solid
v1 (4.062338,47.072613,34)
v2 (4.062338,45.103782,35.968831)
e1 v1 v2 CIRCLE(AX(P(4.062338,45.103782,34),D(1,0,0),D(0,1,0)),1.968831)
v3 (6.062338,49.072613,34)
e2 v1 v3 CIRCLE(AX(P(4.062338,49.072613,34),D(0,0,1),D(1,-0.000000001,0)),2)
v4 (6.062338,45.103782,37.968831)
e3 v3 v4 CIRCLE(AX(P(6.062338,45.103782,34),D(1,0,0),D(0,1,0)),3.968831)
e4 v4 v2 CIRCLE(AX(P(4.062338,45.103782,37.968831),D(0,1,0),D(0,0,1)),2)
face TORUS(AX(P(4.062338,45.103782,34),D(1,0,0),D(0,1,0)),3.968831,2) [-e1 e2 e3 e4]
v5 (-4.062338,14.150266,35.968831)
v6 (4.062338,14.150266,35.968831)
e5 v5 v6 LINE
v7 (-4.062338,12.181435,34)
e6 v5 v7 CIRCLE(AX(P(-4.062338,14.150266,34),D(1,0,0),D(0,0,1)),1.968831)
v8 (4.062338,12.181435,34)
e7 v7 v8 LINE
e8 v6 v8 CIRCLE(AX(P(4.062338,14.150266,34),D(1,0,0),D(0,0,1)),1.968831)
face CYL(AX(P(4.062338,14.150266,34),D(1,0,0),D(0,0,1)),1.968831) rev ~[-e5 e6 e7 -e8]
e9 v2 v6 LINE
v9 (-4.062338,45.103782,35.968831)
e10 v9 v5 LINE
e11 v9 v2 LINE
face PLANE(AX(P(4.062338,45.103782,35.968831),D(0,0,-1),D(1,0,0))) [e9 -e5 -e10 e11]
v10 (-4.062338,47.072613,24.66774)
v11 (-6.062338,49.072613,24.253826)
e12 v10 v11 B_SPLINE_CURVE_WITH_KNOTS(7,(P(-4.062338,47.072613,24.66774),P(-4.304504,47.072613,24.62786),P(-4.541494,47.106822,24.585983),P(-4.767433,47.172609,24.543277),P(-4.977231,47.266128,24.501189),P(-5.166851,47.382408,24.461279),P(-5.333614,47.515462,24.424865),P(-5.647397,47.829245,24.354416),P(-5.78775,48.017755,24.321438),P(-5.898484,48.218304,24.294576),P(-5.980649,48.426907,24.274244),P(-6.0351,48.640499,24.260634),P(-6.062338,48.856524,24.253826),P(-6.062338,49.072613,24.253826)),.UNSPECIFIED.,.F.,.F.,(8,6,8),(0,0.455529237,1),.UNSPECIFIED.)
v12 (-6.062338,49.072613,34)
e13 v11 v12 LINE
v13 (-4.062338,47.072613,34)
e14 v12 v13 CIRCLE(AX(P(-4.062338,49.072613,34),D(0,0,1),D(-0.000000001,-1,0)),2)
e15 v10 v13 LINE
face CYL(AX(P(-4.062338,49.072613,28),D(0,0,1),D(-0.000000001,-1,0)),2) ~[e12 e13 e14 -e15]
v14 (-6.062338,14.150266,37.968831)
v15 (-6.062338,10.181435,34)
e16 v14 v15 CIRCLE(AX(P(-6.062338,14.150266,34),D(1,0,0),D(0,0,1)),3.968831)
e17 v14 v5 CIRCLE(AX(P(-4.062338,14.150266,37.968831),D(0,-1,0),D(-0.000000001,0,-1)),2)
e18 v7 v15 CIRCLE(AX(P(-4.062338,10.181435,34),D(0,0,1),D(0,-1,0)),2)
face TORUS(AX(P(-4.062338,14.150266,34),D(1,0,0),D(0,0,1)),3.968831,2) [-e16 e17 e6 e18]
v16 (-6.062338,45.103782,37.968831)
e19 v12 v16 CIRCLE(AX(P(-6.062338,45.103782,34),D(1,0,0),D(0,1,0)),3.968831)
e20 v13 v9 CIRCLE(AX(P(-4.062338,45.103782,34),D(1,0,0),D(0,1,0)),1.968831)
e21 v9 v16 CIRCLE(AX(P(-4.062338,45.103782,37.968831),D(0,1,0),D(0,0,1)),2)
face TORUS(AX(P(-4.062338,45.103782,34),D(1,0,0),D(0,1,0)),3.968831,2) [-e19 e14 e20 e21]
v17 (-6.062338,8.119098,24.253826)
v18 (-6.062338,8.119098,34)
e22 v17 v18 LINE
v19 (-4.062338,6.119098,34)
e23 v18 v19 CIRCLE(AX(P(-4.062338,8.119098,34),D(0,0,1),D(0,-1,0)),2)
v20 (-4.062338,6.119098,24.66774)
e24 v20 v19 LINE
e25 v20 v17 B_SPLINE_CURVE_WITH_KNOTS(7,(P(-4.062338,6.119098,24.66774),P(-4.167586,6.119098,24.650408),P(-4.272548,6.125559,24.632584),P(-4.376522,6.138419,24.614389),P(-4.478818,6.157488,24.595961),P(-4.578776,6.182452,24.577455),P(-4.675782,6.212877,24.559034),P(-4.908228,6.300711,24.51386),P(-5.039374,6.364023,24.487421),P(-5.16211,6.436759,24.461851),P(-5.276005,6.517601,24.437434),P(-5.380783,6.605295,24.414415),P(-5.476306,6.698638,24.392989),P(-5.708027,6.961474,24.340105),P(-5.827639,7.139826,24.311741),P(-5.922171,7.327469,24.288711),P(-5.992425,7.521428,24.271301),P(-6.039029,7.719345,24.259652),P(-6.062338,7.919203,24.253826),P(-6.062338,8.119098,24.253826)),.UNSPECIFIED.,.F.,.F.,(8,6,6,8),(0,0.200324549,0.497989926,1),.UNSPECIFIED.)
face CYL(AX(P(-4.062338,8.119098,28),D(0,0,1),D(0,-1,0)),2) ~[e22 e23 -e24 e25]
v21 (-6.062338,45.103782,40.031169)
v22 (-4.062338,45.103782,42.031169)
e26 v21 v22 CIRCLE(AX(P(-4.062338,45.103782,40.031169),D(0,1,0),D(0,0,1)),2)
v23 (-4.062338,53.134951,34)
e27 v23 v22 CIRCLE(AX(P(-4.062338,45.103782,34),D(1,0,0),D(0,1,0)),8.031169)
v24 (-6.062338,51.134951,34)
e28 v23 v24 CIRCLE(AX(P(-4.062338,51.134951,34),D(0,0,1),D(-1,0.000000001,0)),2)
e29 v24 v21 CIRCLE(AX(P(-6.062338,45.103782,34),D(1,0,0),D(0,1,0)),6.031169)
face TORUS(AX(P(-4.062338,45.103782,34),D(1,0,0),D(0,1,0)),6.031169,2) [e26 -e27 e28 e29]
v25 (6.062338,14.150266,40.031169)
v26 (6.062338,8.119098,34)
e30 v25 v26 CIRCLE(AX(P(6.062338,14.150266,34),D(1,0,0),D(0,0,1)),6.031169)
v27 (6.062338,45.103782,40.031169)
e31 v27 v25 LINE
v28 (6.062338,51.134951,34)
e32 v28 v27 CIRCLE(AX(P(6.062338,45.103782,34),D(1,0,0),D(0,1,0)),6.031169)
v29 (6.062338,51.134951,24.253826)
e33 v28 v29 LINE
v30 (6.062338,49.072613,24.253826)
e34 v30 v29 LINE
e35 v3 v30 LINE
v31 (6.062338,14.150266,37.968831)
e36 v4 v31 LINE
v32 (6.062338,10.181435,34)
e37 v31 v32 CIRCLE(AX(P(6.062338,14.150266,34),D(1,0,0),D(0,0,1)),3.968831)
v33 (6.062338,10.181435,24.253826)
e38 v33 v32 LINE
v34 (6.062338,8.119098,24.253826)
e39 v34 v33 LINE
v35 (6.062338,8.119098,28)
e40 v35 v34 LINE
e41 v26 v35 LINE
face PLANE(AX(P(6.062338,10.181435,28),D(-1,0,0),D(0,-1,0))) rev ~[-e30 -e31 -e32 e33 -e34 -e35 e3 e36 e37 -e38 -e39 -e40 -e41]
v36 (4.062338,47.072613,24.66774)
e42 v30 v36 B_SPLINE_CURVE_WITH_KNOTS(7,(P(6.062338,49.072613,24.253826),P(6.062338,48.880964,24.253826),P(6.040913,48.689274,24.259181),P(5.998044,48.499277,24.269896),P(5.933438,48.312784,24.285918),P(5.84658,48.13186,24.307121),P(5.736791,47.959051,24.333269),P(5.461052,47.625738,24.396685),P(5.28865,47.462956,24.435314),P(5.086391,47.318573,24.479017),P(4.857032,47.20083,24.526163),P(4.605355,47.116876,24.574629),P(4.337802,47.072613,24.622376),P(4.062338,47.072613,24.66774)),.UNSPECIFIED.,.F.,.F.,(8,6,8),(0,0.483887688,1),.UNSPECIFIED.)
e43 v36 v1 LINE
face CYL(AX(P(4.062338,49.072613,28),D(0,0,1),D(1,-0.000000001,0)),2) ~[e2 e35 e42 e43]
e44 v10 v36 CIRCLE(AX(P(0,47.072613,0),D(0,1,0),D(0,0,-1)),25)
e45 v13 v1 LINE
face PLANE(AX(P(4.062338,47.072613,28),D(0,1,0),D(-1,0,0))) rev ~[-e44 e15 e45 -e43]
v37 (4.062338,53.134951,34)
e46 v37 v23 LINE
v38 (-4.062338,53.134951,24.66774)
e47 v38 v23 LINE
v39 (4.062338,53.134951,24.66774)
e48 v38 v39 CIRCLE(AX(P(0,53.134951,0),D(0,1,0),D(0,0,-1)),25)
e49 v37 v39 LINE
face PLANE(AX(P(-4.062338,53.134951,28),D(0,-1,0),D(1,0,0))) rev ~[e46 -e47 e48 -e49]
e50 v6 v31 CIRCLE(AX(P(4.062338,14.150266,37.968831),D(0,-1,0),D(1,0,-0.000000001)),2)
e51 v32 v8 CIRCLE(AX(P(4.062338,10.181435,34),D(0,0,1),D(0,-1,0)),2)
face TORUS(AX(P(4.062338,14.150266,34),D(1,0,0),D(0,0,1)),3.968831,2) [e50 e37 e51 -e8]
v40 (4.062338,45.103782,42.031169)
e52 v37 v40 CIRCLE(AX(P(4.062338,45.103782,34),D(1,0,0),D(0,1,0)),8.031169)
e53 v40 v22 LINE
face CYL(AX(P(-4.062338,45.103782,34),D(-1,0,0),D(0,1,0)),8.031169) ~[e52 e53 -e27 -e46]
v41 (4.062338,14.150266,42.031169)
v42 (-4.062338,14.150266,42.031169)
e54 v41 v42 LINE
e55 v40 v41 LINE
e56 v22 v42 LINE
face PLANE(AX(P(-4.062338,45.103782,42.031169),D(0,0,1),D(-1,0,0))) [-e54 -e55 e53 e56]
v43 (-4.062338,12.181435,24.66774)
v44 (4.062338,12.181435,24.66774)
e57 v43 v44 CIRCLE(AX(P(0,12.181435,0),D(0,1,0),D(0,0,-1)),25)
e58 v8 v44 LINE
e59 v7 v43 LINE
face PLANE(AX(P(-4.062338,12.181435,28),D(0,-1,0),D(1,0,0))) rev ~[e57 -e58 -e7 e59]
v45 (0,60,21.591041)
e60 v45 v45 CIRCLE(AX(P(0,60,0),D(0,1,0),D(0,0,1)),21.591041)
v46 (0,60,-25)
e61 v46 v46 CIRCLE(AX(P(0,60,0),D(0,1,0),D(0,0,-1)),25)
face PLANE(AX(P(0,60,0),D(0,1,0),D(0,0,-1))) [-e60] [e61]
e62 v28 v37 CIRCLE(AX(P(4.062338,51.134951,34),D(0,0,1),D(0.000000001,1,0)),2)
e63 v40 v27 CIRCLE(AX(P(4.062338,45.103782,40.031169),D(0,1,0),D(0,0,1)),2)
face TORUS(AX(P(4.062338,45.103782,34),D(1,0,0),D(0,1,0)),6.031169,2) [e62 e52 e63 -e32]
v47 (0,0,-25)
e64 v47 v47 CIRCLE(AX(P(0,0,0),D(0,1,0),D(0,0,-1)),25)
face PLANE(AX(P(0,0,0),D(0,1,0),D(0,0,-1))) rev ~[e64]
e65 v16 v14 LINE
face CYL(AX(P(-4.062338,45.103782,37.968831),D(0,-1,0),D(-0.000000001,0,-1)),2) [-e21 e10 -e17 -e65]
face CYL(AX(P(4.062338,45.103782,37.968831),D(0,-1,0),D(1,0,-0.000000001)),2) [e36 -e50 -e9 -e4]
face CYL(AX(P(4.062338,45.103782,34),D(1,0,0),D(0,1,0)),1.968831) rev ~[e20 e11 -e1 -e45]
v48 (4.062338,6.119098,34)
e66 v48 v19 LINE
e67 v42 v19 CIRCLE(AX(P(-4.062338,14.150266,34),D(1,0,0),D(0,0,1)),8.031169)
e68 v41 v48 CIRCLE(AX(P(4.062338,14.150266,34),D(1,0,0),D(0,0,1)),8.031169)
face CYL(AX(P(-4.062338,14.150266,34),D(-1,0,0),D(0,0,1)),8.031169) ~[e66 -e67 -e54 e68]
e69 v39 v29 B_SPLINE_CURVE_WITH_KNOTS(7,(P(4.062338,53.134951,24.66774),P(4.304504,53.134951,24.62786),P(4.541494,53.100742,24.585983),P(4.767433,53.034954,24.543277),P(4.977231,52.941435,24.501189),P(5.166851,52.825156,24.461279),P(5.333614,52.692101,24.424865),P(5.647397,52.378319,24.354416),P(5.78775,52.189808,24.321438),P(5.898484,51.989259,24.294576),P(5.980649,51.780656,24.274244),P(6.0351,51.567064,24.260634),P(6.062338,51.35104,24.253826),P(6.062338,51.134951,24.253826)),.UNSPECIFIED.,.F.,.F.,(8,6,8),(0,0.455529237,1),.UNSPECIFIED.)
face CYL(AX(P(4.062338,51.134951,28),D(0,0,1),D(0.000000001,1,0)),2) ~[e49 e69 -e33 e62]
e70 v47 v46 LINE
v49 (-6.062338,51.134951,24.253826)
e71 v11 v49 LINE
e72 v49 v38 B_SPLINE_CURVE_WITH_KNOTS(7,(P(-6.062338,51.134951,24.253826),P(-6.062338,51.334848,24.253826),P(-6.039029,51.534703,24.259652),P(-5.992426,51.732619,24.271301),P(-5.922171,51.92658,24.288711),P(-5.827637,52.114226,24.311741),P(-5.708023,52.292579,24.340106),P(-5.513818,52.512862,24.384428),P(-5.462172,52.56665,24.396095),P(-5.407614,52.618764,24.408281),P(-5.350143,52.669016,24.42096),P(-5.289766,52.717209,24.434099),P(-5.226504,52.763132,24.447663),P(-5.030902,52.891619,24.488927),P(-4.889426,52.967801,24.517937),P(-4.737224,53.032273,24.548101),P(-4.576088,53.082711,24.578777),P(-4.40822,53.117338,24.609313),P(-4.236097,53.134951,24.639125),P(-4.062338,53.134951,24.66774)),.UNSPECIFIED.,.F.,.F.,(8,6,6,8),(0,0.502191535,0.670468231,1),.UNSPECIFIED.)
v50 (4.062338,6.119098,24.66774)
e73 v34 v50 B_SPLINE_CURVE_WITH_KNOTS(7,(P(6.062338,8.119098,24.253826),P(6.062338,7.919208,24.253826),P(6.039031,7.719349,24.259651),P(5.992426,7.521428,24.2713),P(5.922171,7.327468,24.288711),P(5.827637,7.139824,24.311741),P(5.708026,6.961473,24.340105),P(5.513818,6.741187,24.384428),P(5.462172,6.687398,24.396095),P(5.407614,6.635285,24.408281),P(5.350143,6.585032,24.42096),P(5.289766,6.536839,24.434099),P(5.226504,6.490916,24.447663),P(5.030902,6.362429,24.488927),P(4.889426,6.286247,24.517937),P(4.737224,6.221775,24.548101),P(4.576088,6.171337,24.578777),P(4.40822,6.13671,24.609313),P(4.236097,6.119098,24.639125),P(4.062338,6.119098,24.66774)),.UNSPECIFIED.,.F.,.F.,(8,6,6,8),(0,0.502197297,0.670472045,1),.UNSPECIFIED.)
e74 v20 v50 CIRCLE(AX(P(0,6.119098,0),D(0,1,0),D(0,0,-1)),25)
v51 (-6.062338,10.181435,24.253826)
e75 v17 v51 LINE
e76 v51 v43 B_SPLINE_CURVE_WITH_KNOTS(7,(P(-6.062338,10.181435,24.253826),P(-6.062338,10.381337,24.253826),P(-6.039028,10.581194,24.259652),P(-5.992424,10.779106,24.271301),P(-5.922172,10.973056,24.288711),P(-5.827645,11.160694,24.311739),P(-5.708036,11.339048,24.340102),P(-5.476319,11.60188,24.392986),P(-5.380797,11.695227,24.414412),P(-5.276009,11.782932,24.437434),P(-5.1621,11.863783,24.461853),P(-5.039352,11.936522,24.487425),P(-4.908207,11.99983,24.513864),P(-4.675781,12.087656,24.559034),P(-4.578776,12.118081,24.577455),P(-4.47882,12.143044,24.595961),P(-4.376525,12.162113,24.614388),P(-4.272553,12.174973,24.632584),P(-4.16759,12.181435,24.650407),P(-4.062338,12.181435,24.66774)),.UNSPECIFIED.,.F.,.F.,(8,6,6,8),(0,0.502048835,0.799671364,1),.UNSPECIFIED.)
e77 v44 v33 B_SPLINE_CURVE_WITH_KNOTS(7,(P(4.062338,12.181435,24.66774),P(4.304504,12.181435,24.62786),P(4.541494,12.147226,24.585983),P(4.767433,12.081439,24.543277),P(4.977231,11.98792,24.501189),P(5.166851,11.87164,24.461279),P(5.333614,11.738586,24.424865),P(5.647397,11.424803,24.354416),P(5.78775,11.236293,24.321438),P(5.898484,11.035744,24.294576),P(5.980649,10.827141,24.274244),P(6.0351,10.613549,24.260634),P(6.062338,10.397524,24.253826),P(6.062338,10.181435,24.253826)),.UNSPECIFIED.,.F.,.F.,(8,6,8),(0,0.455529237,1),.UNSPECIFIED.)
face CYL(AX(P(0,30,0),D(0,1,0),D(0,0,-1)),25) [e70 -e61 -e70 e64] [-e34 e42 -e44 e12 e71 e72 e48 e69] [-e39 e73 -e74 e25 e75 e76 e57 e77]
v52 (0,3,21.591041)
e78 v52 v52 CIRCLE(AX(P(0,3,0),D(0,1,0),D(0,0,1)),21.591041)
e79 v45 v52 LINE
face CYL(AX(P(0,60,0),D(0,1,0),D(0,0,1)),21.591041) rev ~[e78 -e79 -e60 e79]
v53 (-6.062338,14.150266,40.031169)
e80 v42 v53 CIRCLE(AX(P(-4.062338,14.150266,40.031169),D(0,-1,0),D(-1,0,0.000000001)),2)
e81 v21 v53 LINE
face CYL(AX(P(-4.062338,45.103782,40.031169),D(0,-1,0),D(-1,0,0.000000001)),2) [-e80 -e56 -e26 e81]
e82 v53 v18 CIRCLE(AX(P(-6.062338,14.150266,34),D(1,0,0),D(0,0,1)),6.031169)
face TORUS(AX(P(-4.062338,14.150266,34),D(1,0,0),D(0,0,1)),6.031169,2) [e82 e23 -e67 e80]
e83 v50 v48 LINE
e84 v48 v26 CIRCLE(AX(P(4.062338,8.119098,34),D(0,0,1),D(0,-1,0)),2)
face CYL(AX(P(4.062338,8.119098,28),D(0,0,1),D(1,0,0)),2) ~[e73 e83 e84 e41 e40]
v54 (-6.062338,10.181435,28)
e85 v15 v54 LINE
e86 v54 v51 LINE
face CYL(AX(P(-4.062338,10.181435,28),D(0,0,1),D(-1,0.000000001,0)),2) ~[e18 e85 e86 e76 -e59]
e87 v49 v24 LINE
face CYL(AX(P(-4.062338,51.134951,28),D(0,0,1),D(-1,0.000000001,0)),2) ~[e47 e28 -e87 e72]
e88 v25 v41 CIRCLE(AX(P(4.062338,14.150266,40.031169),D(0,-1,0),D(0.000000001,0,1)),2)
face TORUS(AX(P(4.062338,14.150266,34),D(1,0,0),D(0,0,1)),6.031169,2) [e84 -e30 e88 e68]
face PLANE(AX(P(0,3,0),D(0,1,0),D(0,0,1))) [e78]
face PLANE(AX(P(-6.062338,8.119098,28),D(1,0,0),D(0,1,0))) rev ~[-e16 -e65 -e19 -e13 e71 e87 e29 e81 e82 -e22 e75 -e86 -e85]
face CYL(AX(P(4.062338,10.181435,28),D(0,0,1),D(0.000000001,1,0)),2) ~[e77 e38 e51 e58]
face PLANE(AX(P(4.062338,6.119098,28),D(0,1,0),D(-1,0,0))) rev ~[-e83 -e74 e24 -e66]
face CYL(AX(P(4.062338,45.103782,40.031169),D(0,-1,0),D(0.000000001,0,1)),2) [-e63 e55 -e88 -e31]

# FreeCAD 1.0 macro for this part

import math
import FreeCAD as App
import Part
import Sketcher

V = App.Vector
Q = App.Units.Quantity

doc = App.newDocument("Part")
body = doc.addObject("PartDesign::Body", "Body")

# Sketch on YZ plane
sketch1 = body.newObject("Sketcher::SketchObject", "Sketch")
sketch1.AttachmentSupport = (doc.getObject("YZ_Plane"), [""])
sketch1.MapMode = "FlatFace"
sketch1.addGeometry([
    Part.LineSegment(V(60, 25, 0), V(0, 25, 0)),
    Part.LineSegment(V(0, 25, 0), V(0, 0, 0)),
    Part.LineSegment(V(0, 0, 0), V(60, 0, 0)),
    Part.LineSegment(V(60, 0, 0), V(60, 25, 0)),
], False)
sketch1.addConstraint([
    Sketcher.Constraint("Coincident", 0, 2, 1, 1),
    Sketcher.Constraint("Coincident", 1, 2, 2, 1),
    Sketcher.Constraint("Coincident", 2, 2, 3, 1),
    Sketcher.Constraint("Coincident", 3, 2, 0, 1),
    Sketcher.Constraint("Horizontal", 0),
    Sketcher.Constraint("Vertical", 1),
    Sketcher.Constraint("Horizontal", 2),
    Sketcher.Constraint("Vertical", 3),
    Sketcher.Constraint("Coincident", 1, 2, -1, 1),
    Sketcher.Constraint("DistanceX", 0, 2, 0, 1, Q("60 mm")),
    Sketcher.Constraint("DistanceY", 1, 2, 1, 1, Q("25 mm")),
])
revolution = body.newObject("PartDesign::Revolution", "Revolution")
revolution.Profile = sketch1
revolution.ReferenceAxis = (sketch1, ["H_Axis"])
revolution.Angle = 360

# Sketch on XZ plane
sketch2 = body.newObject("Sketcher::SketchObject", "Sketch001")
sketch2.AttachmentSupport = (doc.getObject("XZ_Plane"), [""])
sketch2.MapMode = "FlatFace"
sketch2.AttachmentOffset = App.Placement(V(0, 0, -60), App.Rotation())
sketch2.addGeometry(Part.Circle(V(0, 0, 0), V(0, 0, 1), 22), False)
sketch2.addConstraint([
    Sketcher.Constraint("Coincident", 0, 3, -1, 1),
    Sketcher.Constraint("Diameter", 0, Q("43.182082 mm")),
])
pocket1 = body.newObject("PartDesign::Pocket", "Pocket")
pocket1.Profile = sketch2
pocket1.Length = 57
pocket1.Reversed = True
body2 = doc.addObject("PartDesign::Body", "Body001")

# Sketch on XY plane
sketch3 = body2.newObject("Sketcher::SketchObject", "Sketch002")
sketch3.AttachmentSupport = (doc.getObject("XY_Plane001"), [""])
sketch3.MapMode = "FlatFace"
sketch3.AttachmentOffset = App.Placement(V(0, 0, 28), App.Rotation())
sketch3.addGeometry([
    Part.LineSegment(V(4.1, 53.1, 0), V(-4.1, 53.1, 0)),  # 0
    Part.ArcOfCircle(Part.Circle(V(-4.1, 51.1, 0), V(0, 0, 1), 2), math.radians(90), math.radians(180)),  # 1
    Part.LineSegment(V(-6.1, 51.1, 0), V(-6.1, 49.1, 0)),  # 2
    Part.ArcOfCircle(Part.Circle(V(-4.1, 49.1, 0), V(0, 0, 1), 2), math.radians(-180), math.radians(-90)),  # 3
    Part.LineSegment(V(-4.1, 47.1, 0), V(4.1, 47.1, 0)),  # 4
    Part.ArcOfCircle(Part.Circle(V(4.1, 49.1, 0), V(0, 0, 1), 2), math.radians(-90), math.radians(0)),  # 5
    Part.LineSegment(V(6.1, 49.1, 0), V(6.1, 51.1, 0)),  # 6
    Part.ArcOfCircle(Part.Circle(V(4.1, 51.1, 0), V(0, 0, 1), 2), math.radians(0), math.radians(90)),  # 7
], False)
sketch3.addConstraint([
    Sketcher.Constraint("Tangent", 0, 2, 1, 1),
    Sketcher.Constraint("Tangent", 1, 2, 2, 1),
    Sketcher.Constraint("Tangent", 2, 2, 3, 1),
    Sketcher.Constraint("Tangent", 3, 2, 4, 1),
    Sketcher.Constraint("Tangent", 4, 2, 5, 1),
    Sketcher.Constraint("Tangent", 5, 2, 6, 1),
    Sketcher.Constraint("Tangent", 6, 2, 7, 1),
    Sketcher.Constraint("Tangent", 7, 2, 0, 1),
    Sketcher.Constraint("Horizontal", 0),
    Sketcher.Constraint("Vertical", 2),
    Sketcher.Constraint("Horizontal", 4),
    Sketcher.Constraint("Vertical", 6),
    Sketcher.Constraint("Equal", 1, 3),
    Sketcher.Constraint("Equal", 3, 5),
    Sketcher.Constraint("Equal", 5, 7),
    Sketcher.Constraint("Radius", 1, Q("2 mm")),
    Sketcher.Constraint("DistanceX", 0, 2, 0, 1, Q("8.124675 mm")),
    Sketcher.Constraint("DistanceY", 2, 2, 2, 1, Q("2.062338 mm")),
    Sketcher.Constraint("DistanceY", -1, 1, 1, 3, Q("51.134951 mm")),
    Sketcher.Constraint("DistanceX", 1, 3, -1, 1, Q("4.062338 mm")),
])

# Sketch on YZ plane
sketch4 = body2.newObject("Sketcher::SketchObject", "Sketch003")
sketch4.AttachmentSupport = (doc.getObject("YZ_Plane001"), [""])
sketch4.MapMode = "FlatFace"
sketch4.addGeometry([
    Part.LineSegment(V(50, 28, 0), V(50, 34, 0)),  # 0
    Part.ArcOfCircle(Part.Circle(V(45, 34, 0), V(0, 0, 1), 5), math.radians(0), math.radians(90)),  # 1
    Part.LineSegment(V(45, 39, 0), V(14, 39, 0)),  # 2
    Part.ArcOfCircle(Part.Circle(V(14, 34, 0), V(0, 0, 1), 5), math.radians(90), math.radians(180)),  # 3
    Part.LineSegment(V(9, 34, 0), V(9, 28, 0)),  # 4
], False)
sketch4.addConstraint([
    Sketcher.Constraint("Tangent", 0, 2, 1, 1),
    Sketcher.Constraint("Tangent", 1, 2, 2, 1),
    Sketcher.Constraint("Tangent", 2, 2, 3, 1),
    Sketcher.Constraint("Tangent", 3, 2, 4, 1),
    Sketcher.Constraint("Vertical", 0),
    Sketcher.Constraint("Horizontal", 2),
    Sketcher.Constraint("Vertical", 4),
    Sketcher.Constraint("Equal", 1, 3),
    Sketcher.Constraint("Horizontal", 0, 1, 4, 2),
    Sketcher.Constraint("Radius", 1, Q("5 mm")),
    Sketcher.Constraint("DistanceY", 0, 1, 0, 2, Q("6 mm")),
    Sketcher.Constraint("DistanceY", -1, 1, 1, 3, Q("34 mm")),
    Sketcher.Constraint("DistanceX", 2, 2, 2, 1, Q("30.953515 mm")),
    Sketcher.Constraint("DistanceX", -1, 1, 1, 3, Q("45.103782 mm")),
])
doc.recompute()

additivepipe = body2.newObject("PartDesign::AdditivePipe", "AdditivePipe")
additivepipe.Profile = sketch3
additivepipe.Spine = (sketch4, ["Edge1", "Edge2", "Edge3", "Edge4", "Edge5"])
body.AllowCompound = True
doc.recompute()

boolean = body.newObject("PartDesign::Boolean", "Boolean")
boolean.Type = "Fuse"
boolean.addObjects([body2])

# Sketch on XY plane
sketch5 = body.newObject("Sketcher::SketchObject", "Sketch004")
sketch5.AttachmentSupport = (doc.getObject("XY_Plane"), [""])
sketch5.MapMode = "FlatFace"
sketch5.AttachmentOffset = App.Placement(V(0, 0, 28), App.Rotation())
sketch5.addGeometry([
    Part.LineSegment(V(-4.1, 53.1, 0), V(4.1, 53.1, 0)),  # 0
    Part.ArcOfCircle(Part.Circle(V(4.1, 51.1, 0), V(0, 0, 1), 2), math.radians(0), math.radians(90)),  # 1
    Part.LineSegment(V(6.1, 51.1, 0), V(6.1, 49.1, 0)),  # 2
    Part.ArcOfCircle(Part.Circle(V(4.1, 49.1, 0), V(0, 0, 1), 2), math.radians(-90), math.radians(0)),  # 3
    Part.LineSegment(V(4.1, 47.1, 0), V(-4.1, 47.1, 0)),  # 4
    Part.ArcOfCircle(Part.Circle(V(-4.1, 49.1, 0), V(0, 0, 1), 2), math.radians(-180), math.radians(-90)),  # 5
    Part.LineSegment(V(-6.1, 49.1, 0), V(-6.1, 51.1, 0)),  # 6
    Part.ArcOfCircle(Part.Circle(V(-4.1, 51.1, 0), V(0, 0, 1), 2), math.radians(90), math.radians(180)),  # 7
], False)
sketch5.addConstraint([
    Sketcher.Constraint("Tangent", 0, 2, 1, 2),
    Sketcher.Constraint("Tangent", 1, 1, 2, 1),
    Sketcher.Constraint("Tangent", 2, 2, 3, 2),
    Sketcher.Constraint("Tangent", 3, 1, 4, 1),
    Sketcher.Constraint("Tangent", 4, 2, 5, 2),
    Sketcher.Constraint("Tangent", 5, 1, 6, 1),
    Sketcher.Constraint("Tangent", 6, 2, 7, 2),
    Sketcher.Constraint("Tangent", 7, 1, 0, 1),
    Sketcher.Constraint("Horizontal", 0),
    Sketcher.Constraint("Vertical", 2),
    Sketcher.Constraint("Horizontal", 4),
    Sketcher.Constraint("Vertical", 6),
    Sketcher.Constraint("Equal", 1, 3),
    Sketcher.Constraint("Equal", 3, 5),
    Sketcher.Constraint("Equal", 5, 7),
    Sketcher.Constraint("Radius", 1, Q("2 mm")),
    Sketcher.Constraint("DistanceX", 0, 1, 0, 2, Q("8.124675 mm")),
    Sketcher.Constraint("DistanceY", 2, 2, 2, 1, Q("2.062338 mm")),
    Sketcher.Constraint("DistanceY", -1, 1, 1, 3, Q("51.134951 mm")),
    Sketcher.Constraint("DistanceX", -1, 1, 1, 3, Q("4.062338 mm")),
])
pad1 = body.newObject("PartDesign::Pad", "Pad")
pad1.Profile = sketch5
pad1.Type = "UpToFirst"
pad1.Reversed = True

# Sketch on XY plane
sketch6 = body.newObject("Sketcher::SketchObject", "Sketch005")
sketch6.AttachmentSupport = (doc.getObject("XY_Plane"), [""])
sketch6.MapMode = "FlatFace"
sketch6.AttachmentOffset = App.Placement(V(0, 0, 28), App.Rotation())
sketch6.addGeometry([
    Part.LineSegment(V(-6.1, 8.1, 0), V(-6.1, 10.2, 0)),  # 0
    Part.ArcOfCircle(Part.Circle(V(-4.1, 10.2, 0), V(0, 0, 1), 2), math.radians(90), math.radians(180)),  # 1
    Part.LineSegment(V(-4.1, 12.2, 0), V(4.1, 12.2, 0)),  # 2
    Part.ArcOfCircle(Part.Circle(V(4.1, 10.2, 0), V(0, 0, 1), 2), math.radians(0), math.radians(90)),  # 3
    Part.LineSegment(V(6.1, 10.2, 0), V(6.1, 8.1, 0)),  # 4
    Part.ArcOfCircle(Part.Circle(V(4.1, 8.1, 0), V(0, 0, 1), 2), math.radians(-90), math.radians(0)),  # 5
    Part.LineSegment(V(4.1, 6.1, 0), V(-4.1, 6.1, 0)),  # 6
    Part.ArcOfCircle(Part.Circle(V(-4.1, 8.1, 0), V(0, 0, 1), 2), math.radians(180), math.radians(270)),  # 7
], False)
sketch6.addConstraint([
    Sketcher.Constraint("Tangent", 0, 2, 1, 2),
    Sketcher.Constraint("Tangent", 1, 1, 2, 1),
    Sketcher.Constraint("Tangent", 2, 2, 3, 2),
    Sketcher.Constraint("Tangent", 3, 1, 4, 1),
    Sketcher.Constraint("Tangent", 4, 2, 5, 2),
    Sketcher.Constraint("Tangent", 5, 1, 6, 1),
    Sketcher.Constraint("Tangent", 6, 2, 7, 2),
    Sketcher.Constraint("Tangent", 7, 1, 0, 1),
    Sketcher.Constraint("Vertical", 0),
    Sketcher.Constraint("Horizontal", 2),
    Sketcher.Constraint("Vertical", 4),
    Sketcher.Constraint("Horizontal", 6),
    Sketcher.Constraint("Equal", 1, 3),
    Sketcher.Constraint("Equal", 3, 5),
    Sketcher.Constraint("Equal", 5, 7),
    Sketcher.Constraint("Radius", 1, Q("2 mm")),
    Sketcher.Constraint("DistanceX", 2, 1, 2, 2, Q("8.124675 mm")),
    Sketcher.Constraint("DistanceY", 0, 1, 0, 2, Q("2.062338 mm")),
    Sketcher.Constraint("DistanceX", 1, 3, -1, 1, Q("4.062338 mm")),
    Sketcher.Constraint("DistanceY", -1, 1, 1, 3, Q("10.181435 mm")),
])
pad2 = body.newObject("PartDesign::Pad", "Pad001")
pad2.Profile = sketch6
pad2.Length = 3.746174
pad2.Reversed = True

doc.recompute()
